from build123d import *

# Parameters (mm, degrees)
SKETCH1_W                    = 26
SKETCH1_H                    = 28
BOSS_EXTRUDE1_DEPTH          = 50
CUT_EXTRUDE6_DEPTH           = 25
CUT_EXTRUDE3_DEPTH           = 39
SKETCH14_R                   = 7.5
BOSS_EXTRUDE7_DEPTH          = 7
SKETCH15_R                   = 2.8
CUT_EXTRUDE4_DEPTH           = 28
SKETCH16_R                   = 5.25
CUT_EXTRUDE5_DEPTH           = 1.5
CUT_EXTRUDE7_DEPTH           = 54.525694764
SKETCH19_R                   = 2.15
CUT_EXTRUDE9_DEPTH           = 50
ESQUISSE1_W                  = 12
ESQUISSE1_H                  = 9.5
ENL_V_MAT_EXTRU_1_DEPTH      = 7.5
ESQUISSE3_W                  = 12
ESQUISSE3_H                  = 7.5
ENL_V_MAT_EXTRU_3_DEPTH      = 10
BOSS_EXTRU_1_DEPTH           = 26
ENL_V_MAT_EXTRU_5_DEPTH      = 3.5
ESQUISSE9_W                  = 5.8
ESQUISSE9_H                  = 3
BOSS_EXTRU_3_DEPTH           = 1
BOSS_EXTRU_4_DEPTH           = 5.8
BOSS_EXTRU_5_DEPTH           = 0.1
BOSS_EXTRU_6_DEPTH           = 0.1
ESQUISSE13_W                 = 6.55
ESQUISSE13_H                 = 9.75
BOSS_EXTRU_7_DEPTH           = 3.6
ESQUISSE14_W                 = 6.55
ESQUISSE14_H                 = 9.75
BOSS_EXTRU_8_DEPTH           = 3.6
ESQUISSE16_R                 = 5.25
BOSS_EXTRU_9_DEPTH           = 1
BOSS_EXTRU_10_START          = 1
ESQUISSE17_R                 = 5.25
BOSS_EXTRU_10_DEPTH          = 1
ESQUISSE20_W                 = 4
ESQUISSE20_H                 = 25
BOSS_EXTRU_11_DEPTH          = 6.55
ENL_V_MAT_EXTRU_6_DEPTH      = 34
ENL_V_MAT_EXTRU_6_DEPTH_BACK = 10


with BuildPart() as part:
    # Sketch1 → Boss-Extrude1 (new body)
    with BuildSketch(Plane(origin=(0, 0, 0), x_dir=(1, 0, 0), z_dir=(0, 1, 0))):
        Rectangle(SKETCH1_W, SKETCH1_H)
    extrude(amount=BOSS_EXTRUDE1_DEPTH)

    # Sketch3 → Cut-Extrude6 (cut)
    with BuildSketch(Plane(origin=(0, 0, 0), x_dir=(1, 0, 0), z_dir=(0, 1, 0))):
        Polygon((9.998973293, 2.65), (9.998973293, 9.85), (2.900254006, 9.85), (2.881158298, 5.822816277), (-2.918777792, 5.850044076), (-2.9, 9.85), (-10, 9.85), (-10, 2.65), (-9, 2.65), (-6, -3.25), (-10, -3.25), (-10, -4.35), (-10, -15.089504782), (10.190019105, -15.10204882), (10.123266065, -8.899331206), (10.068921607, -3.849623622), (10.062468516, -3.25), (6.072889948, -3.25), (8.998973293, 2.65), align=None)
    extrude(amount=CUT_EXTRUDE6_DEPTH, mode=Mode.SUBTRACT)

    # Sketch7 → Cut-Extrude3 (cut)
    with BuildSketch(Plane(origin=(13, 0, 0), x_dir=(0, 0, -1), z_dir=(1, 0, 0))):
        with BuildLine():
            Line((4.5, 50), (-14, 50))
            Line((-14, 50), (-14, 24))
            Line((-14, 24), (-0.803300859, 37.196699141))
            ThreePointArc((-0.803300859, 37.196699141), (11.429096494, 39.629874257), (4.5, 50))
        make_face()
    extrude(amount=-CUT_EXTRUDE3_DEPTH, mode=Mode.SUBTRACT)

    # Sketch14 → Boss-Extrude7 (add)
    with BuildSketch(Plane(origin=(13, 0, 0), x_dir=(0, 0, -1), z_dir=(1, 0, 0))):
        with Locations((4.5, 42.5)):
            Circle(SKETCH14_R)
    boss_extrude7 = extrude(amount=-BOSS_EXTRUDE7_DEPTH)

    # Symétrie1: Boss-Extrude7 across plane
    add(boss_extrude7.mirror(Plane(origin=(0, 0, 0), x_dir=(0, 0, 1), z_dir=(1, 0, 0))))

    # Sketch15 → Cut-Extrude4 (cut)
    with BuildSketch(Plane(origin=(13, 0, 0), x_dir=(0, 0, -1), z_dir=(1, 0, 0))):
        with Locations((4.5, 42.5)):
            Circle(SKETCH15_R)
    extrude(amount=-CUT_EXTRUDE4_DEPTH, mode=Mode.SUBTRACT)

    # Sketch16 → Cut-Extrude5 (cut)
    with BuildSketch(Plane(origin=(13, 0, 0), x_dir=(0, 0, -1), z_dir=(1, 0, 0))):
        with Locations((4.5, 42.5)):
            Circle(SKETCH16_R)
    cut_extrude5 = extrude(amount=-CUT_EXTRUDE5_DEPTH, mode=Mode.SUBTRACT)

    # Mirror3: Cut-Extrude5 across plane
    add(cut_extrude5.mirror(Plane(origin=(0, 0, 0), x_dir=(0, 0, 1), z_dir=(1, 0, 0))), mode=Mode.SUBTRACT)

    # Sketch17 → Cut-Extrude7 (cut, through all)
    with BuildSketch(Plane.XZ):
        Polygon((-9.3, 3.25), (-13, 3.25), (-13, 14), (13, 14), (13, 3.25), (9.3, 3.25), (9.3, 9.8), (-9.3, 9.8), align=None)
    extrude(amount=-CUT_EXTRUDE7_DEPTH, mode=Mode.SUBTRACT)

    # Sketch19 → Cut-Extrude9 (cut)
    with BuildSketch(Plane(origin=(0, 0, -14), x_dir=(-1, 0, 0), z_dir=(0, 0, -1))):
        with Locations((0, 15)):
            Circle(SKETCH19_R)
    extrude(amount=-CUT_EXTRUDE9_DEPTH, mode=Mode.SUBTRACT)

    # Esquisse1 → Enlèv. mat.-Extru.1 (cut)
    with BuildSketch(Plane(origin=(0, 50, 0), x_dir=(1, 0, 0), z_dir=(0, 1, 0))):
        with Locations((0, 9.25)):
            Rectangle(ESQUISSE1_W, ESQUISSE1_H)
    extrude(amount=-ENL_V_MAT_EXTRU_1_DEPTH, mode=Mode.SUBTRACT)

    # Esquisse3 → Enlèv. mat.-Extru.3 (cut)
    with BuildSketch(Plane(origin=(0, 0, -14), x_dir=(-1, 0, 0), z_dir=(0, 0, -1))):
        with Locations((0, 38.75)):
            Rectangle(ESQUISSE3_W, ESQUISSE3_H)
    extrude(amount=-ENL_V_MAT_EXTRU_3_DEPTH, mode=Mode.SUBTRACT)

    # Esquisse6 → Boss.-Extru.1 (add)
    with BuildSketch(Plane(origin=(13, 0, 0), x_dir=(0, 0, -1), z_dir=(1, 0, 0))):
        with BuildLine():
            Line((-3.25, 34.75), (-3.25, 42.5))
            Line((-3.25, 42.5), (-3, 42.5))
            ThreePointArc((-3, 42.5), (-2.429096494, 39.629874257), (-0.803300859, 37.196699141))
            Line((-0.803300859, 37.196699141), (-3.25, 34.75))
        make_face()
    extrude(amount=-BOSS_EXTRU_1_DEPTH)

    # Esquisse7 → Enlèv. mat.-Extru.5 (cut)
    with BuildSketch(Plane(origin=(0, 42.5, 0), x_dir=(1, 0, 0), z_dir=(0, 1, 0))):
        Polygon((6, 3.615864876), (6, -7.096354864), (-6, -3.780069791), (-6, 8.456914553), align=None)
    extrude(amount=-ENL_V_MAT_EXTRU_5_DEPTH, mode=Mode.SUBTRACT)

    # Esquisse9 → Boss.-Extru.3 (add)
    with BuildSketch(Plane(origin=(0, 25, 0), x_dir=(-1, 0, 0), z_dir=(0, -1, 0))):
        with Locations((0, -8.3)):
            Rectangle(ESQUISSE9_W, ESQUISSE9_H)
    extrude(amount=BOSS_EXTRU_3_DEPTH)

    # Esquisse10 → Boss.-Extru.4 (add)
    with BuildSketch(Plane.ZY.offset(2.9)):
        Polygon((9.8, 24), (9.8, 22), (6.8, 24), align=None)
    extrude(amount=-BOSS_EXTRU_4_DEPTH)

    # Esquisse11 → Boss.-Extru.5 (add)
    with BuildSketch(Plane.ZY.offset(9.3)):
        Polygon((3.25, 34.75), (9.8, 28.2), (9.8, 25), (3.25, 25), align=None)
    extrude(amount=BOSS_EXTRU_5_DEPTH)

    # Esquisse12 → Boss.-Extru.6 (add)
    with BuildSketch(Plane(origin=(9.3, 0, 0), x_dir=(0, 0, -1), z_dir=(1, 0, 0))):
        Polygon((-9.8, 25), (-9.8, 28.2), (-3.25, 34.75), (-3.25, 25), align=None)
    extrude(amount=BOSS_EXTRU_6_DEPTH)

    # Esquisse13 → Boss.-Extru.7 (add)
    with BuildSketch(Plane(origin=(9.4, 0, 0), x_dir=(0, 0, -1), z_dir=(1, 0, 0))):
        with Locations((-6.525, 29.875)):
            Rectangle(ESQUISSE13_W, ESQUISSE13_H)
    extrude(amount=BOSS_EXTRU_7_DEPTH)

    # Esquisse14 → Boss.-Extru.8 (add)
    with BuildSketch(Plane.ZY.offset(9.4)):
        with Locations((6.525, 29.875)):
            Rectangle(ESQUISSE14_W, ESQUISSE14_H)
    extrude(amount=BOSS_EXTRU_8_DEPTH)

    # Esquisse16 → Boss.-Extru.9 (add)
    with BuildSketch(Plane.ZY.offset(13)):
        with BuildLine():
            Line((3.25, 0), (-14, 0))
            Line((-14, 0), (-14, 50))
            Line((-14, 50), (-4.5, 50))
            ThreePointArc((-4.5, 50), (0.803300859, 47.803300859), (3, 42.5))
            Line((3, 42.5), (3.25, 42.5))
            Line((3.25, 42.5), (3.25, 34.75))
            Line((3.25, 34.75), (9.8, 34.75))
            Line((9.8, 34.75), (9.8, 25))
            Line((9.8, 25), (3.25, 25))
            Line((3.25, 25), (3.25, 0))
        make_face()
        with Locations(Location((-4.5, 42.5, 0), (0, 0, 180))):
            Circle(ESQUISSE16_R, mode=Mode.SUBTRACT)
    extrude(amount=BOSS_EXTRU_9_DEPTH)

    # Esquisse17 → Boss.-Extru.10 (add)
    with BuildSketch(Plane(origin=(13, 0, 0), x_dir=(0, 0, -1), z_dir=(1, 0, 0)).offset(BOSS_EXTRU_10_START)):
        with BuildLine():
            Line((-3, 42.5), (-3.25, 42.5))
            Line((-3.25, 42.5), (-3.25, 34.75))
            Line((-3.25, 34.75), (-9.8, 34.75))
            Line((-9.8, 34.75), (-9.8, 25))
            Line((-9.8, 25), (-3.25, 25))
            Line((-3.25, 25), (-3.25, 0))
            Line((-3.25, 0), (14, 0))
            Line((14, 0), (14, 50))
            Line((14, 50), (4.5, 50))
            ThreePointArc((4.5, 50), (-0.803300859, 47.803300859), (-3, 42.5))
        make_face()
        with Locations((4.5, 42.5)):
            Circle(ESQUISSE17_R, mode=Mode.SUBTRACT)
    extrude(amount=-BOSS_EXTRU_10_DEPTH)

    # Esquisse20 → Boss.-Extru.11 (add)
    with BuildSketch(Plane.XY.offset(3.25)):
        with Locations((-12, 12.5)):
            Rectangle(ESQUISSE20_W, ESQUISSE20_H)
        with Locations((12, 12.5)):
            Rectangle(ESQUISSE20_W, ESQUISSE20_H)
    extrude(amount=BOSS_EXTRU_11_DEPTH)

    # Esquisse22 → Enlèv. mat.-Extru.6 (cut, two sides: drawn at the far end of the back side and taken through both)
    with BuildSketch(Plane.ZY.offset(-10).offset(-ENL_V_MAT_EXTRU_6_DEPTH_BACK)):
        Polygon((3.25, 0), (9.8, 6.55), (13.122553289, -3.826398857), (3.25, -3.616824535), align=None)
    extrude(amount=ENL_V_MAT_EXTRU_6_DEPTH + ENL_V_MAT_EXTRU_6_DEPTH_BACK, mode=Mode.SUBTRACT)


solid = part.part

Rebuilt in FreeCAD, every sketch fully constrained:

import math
import FreeCAD as App
import Part
import Sketcher

V = App.Vector
Q = App.Units.Quantity


def add_polygon(sketch, points):
    """Adds a closed chain of lines whose ends are joined by coincident constraints."""
    first, n = sketch.GeometryCount, len(points)
    for a, b in zip(points, points[1:] + points[:1]):
        sketch.addGeometry(Part.LineSegment(App.Vector(*a, 0), App.Vector(*b, 0)), False)
    for i in range(n):
        sketch.addConstraint(Sketcher.Constraint("Coincident", first + i, 2, first + (i + 1) % n, 1))

doc = App.newDocument("Part")
params = doc.addObject("Spreadsheet::Sheet", "Params")
for row, (alias, value) in enumerate([
    ("sketch1_width", "26 mm"),
    ("sketch1_height", "28 mm"),
    ("pad1_length", "50 mm"),
    ("sketch2_width", "1 mm"),
    ("sketch2_width2", "4 mm"),
    ("sketch2_length", "4 mm"),
    ("sketch2_width3", "7.1 mm"),
    ("sketch2_height", "7.2 mm"),
    ("pocket1_length", "25 mm"),
    ("sketch3_radius", "7.5 mm"),
    ("sketch3_width", "26 mm"),
    ("sketch3_height", "18.5 mm"),
    ("pocket2_length", "39 mm"),
    ("sketch4_diameter", "15 mm"),
    ("pad2_length", "7 mm"),
    ("sketch5_diameter", "5.6 mm"),
    ("pocket3_length", "28 mm"),
    ("sketch6_diameter", "10.5 mm"),
    ("pocket4_length", "1.5 mm"),
    ("sketch7_width", "26 mm"),
    ("sketch7_width2", "3.7 mm"),
    ("sketch7_height", "6.55 mm"),
    ("sketch7_height2", "10.75 mm"),
    ("sketch8_diameter", "4.3 mm"),
    ("pocket6_length", "50 mm"),
    ("sketch9_width", "12 mm"),
    ("sketch9_height", "9.5 mm"),
    ("pocket7_length", "7.5 mm"),
    ("sketch10_width", "12 mm"),
    ("sketch10_height", "7.5 mm"),
    ("pocket8_length", "10 mm"),
    ("sketch11_radius", "7.5 mm"),
    ("sketch11_width", "7.75 mm"),
    ("sketch11_height", "0.25 mm"),
    ("pad3_length", "26 mm"),
    ("pocket9_length", "3.5 mm"),
    ("sketch13_height", "3 mm"),
    ("sketch13_width", "5.8 mm"),
    ("pad4_length", "1 mm"),
    ("sketch14_width", "2 mm"),
    ("sketch14_height", "3 mm"),
    ("pad5_length", "5.8 mm"),
    ("sketch15_width", "3.2 mm"),
    ("sketch15_width2", "9.75 mm"),
    ("pad6_length", "0.1 mm"),
    ("sketch16_width", "3.2 mm"),
    ("sketch16_width2", "9.75 mm"),
    ("pad7_length", "0.1 mm"),
    ("sketch17_width", "9.75 mm"),
    ("sketch17_height", "6.55 mm"),
    ("pad8_length", "3.6 mm"),
    ("sketch18_width", "9.75 mm"),
    ("sketch18_height", "6.55 mm"),
    ("pad9_length", "3.6 mm"),
    ("sketch19_diameter", "10.5 mm"),
    ("sketch19_radius", "7.5 mm"),
    ("sketch19_width", "25 mm"),
    ("sketch19_width2", "50 mm"),
    ("sketch19_height", "9.5 mm"),
    ("pad10_length", "1 mm"),
    ("sketch20_diameter", "10.5 mm"),
    ("sketch20_radius", "7.5 mm"),
    ("sketch20_width", "25 mm"),
    ("sketch20_width2", "50 mm"),
    ("sketch20_height", "9.5 mm"),
    ("pad11_length", "1 mm"),
    ("sketch21_width", "4 mm"),
    ("sketch21_height", "25 mm"),
    ("pad12_length", "6.55 mm"),
], start=1):
    params.set(f"A{row}", alias)
    params.set(f"B{row}", "=" + value)
    params.setAlias(f"B{row}", alias)

body = doc.addObject("PartDesign::Body", "Body")

sketch1 = doc.addObject("Sketcher::SketchObject", "Sketch")
body.addObject(sketch1)
sketch1.AttachmentSupport = (doc.XZ_Plane, [""])
sketch1.MapMode = "FlatFace"
add_polygon(sketch1, [(-13, -14), (-13, 14), (13, 14), (13, -14)])
sketch1.addConstraint([
    Sketcher.Constraint("Vertical", 0),
    Sketcher.Constraint("Horizontal", 1),
    Sketcher.Constraint("Vertical", 2),
    Sketcher.Constraint("Horizontal", 3),
    Sketcher.Constraint("Symmetric", 0, 2, 2, 2, -1, 1),
    Sketcher.Constraint("DistanceX", 1, 1, 1, 2, 26.0),
    Sketcher.Constraint("DistanceY", 0, 1, 0, 2, 28.0),
])
sketch1.setExpression("Constraints[9]", "Params.sketch1_width")
sketch1.setExpression("Constraints[10]", "Params.sketch1_height")
pad1 = doc.addObject("PartDesign::Pad", "Pad")
body.addObject(pad1)
pad1.Profile = sketch1
pad1.setExpression("Length", "Params.pad1_length")
pad1.Reversed = True

sketch2 = doc.addObject("Sketcher::SketchObject", "Sketch001")
body.addObject(sketch2)
sketch2.AttachmentSupport = (doc.XZ_Plane, [""])
sketch2.MapMode = "FlatFace"
add_polygon(sketch2, [(10, -2.6), (10, -9.8), (2.9, -9.8), (2.9, -5.8), (-2.9, -5.9), (-2.9, -9.8), (-10, -9.8), (-10, -2.6), (-9, -2.6), (-6, 3.2), (-10, 3.2), (-10, 15.1), (10.2, 15.1), (10.1, 8.9), (10.1, 3.8), (10.1, 3.2), (6.1, 3.2), (9, -2.6)])
sketch2.addConstraint([
    Sketcher.Constraint("Vertical", 0),
    Sketcher.Constraint("Horizontal", 1),
    Sketcher.Constraint("Horizontal", 5),
    Sketcher.Constraint("Vertical", 6),
    Sketcher.Constraint("Horizontal", 7),
    Sketcher.Constraint("Horizontal", 9),
    Sketcher.Constraint("Vertical", 10),
    Sketcher.Constraint("Horizontal", 15),
    Sketcher.Constraint("Horizontal", 17),
    Sketcher.Constraint("Perpendicular", 3, 4),
    Sketcher.Constraint("Parallel", 12, 13),
    Sketcher.Constraint("Parallel", 13, 14),
    Sketcher.Constraint("Horizontal", 1, 2, 4, 2),
    Sketcher.Constraint("Horizontal", 9, 2, 14, 2),
    Sketcher.Constraint("Horizontal", 7, 2, 16, 2),
    Sketcher.Constraint("Vertical", 6, 2, 9, 2),
    Sketcher.Constraint("Equal", 7, 17),
    Sketcher.Constraint("DistanceX", 7, 1, 7, 2, 1.0),
    Sketcher.Constraint("DistanceX", 9, 2, 9, 1, 4.0),
    Sketcher.Constraint("Distance", 4, 4.0),
    Sketcher.Constraint("DistanceX", 5, 2, 5, 1, 7.1),
    Sketcher.Constraint("DistanceY", 0, 2, 0, 1, 7.2),
    Sketcher.Constraint("DistanceX", 5, 2, -1, 1, 10.0),
    Sketcher.Constraint("Distance", 3, 5.8),
    Sketcher.Constraint("DistanceY", 7, 2, 8, 2, 5.9),
    Sketcher.Constraint("Distance", 13, 5.05),
    Sketcher.Constraint("DistanceY", 0, 2, -1, 1, 9.85),
    Sketcher.Constraint("DistanceX", 1, 2, 1, 1, 7.098719),
    Sketcher.Constraint("DistanceX", 15, 2, 15, 1, 3.989579),
    Sketcher.Constraint("Distance", 2, 4.027229),
    Sketcher.Constraint("Distance", 14, 0.599658),
    Sketcher.Constraint("Distance", 16, 6.585739),
    Sketcher.Constraint("DistanceY", 10, 1, 10, 2, 11.839505),
    Sketcher.Constraint("DistanceX", -1, 1, 11, 2, 10.190019),
    Sketcher.Constraint("DistanceY", -1, 1, 11, 2, 15.102049),
    Sketcher.Constraint("DistanceX", -1, 1, 13, 2, 10.068922),
])
sketch2.setExpression("Constraints[35]", "Params.sketch2_width")
sketch2.setExpression("Constraints[36]", "Params.sketch2_width2")
sketch2.setExpression("Constraints[37]", "Params.sketch2_length")
sketch2.setExpression("Constraints[38]", "Params.sketch2_width3")
sketch2.setExpression("Constraints[39]", "Params.sketch2_height")
pocket1 = doc.addObject("PartDesign::Pocket", "Pocket")
body.addObject(pocket1)
pocket1.Profile = sketch2
pocket1.setExpression("Length", "Params.pocket1_length")

sketch3 = doc.addObject("Sketcher::SketchObject", "Sketch002")
body.addObject(sketch3)
sketch3.AttachmentSupport = (doc.YZ_Plane, [""])
sketch3.MapMode = "FlatFace"
sketch3.AttachmentOffset = App.Placement(V(0, 0, 13), App.Rotation())
sketch3.addGeometry([
    Part.LineSegment(V(50, -4, 0), V(50, 14, 0)),
    Part.LineSegment(V(50, 14, 0), V(24, 14, 0)),
    Part.LineSegment(V(24, 14, 0), V(37, 1, 0)),
    Part.ArcOfCircle(Part.Circle(V(42, -4, 0), V(0, 0, 1), 8), math.radians(135), math.radians(360)),
], False)
sketch3.addConstraint([
    Sketcher.Constraint("Coincident", 0, 2, 1, 1),
    Sketcher.Constraint("Coincident", 1, 2, 2, 1),
    Sketcher.Constraint("Coincident", 2, 2, 3, 1),
    Sketcher.Constraint("Tangent", 3, 2, 0, 1),
    Sketcher.Constraint("Vertical", 0),
    Sketcher.Constraint("Horizontal", 1),
    Sketcher.Constraint("Radius", 3, 7.5),
    Sketcher.Constraint("DistanceX", 1, 2, 1, 1, 26.0),
    Sketcher.Constraint("Angle", 2, Q("-45 deg")),
    Sketcher.Constraint("DistanceY", 0, 1, 0, 2, 18.5),
    Sketcher.Constraint("DistanceX", -1, 1, 0, 2, 50.0),
    Sketcher.Constraint("DistanceY", -1, 1, 0, 2, 14.0),
])
sketch3.setExpression("Constraints[6]", "Params.sketch3_radius")
sketch3.setExpression("Constraints[7]", "Params.sketch3_width")
sketch3.setExpression("Constraints[9]", "Params.sketch3_height")
pocket2 = doc.addObject("PartDesign::Pocket", "Pocket001")
body.addObject(pocket2)
pocket2.Profile = sketch3
pocket2.setExpression("Length", "Params.pocket2_length")

sketch4 = doc.addObject("Sketcher::SketchObject", "Sketch003")
body.addObject(sketch4)
sketch4.AttachmentSupport = (doc.YZ_Plane, [""])
sketch4.MapMode = "FlatFace"
sketch4.AttachmentOffset = App.Placement(V(0, 0, 13), App.Rotation())
sketch4.addGeometry(Part.Circle(V(42, -4, 0), V(0, 0, 1), 8), False)
sketch4.addConstraint([
    Sketcher.Constraint("Diameter", 0, 15.0),
    Sketcher.Constraint("DistanceX", -1, 1, 0, 3, 42.5),
    Sketcher.Constraint("DistanceY", 0, 3, -1, 1, 4.5),
])
sketch4.setExpression("Constraints[0]", "Params.sketch4_diameter")
pad2 = doc.addObject("PartDesign::Pad", "Pad001")
body.addObject(pad2)
pad2.Profile = sketch4
pad2.setExpression("Length", "Params.pad2_length")
pad2.Reversed = True
doc.recompute()

mirrored = doc.addObject("PartDesign::Mirrored", "Mirrored")
body.addObject(mirrored)
mirrored.Originals = [pad2]
mirrored.MirrorPlane = (doc.YZ_Plane, [""])
body.Tip = mirrored

sketch5 = doc.addObject("Sketcher::SketchObject", "Sketch004")
body.addObject(sketch5)
sketch5.AttachmentSupport = (doc.YZ_Plane, [""])
sketch5.MapMode = "FlatFace"
sketch5.AttachmentOffset = App.Placement(V(0, 0, 13), App.Rotation())
sketch5.addGeometry(Part.Circle(V(42.5, -4.5, 0), V(0, 0, 1), 2.8), False)
sketch5.addConstraint([
    Sketcher.Constraint("Diameter", 0, 5.6),
    Sketcher.Constraint("DistanceX", -1, 1, 0, 3, 42.5),
    Sketcher.Constraint("DistanceY", 0, 3, -1, 1, 4.5),
])
sketch5.setExpression("Constraints[0]", "Params.sketch5_diameter")
pocket3 = doc.addObject("PartDesign::Pocket", "Pocket002")
body.addObject(pocket3)
pocket3.Profile = sketch5
pocket3.setExpression("Length", "Params.pocket3_length")

sketch6 = doc.addObject("Sketcher::SketchObject", "Sketch005")
body.addObject(sketch6)
sketch6.AttachmentSupport = (doc.YZ_Plane, [""])
sketch6.MapMode = "FlatFace"
sketch6.AttachmentOffset = App.Placement(V(0, 0, 13), App.Rotation())
sketch6.addGeometry(Part.Circle(V(42, -4, 0), V(0, 0, 1), 5), False)
sketch6.addConstraint([
    Sketcher.Constraint("Diameter", 0, 10.5),
    Sketcher.Constraint("DistanceX", -1, 1, 0, 3, 42.5),
    Sketcher.Constraint("DistanceY", 0, 3, -1, 1, 4.5),
])
sketch6.setExpression("Constraints[0]", "Params.sketch6_diameter")
pocket4 = doc.addObject("PartDesign::Pocket", "Pocket003")
body.addObject(pocket4)
pocket4.Profile = sketch6
pocket4.setExpression("Length", "Params.pocket4_length")
doc.recompute()

mirrored2 = doc.addObject("PartDesign::Mirrored", "Mirrored001")
body.addObject(mirrored2)
mirrored2.Originals = [pocket4]
mirrored2.MirrorPlane = (doc.YZ_Plane, [""])
body.Tip = mirrored2

sketch7 = doc.addObject("Sketcher::SketchObject", "Sketch006")
body.addObject(sketch7)
sketch7.AttachmentSupport = (doc.XZ_Plane, [""])
sketch7.MapMode = "FlatFace"
add_polygon(sketch7, [(-13, 3.2), (-9.3, 3.2), (-9.3, 9.8), (9.3, 9.8), (9.3, 3.2), (13, 3.2), (13, 14), (-13, 14)])
sketch7.addConstraint([
    Sketcher.Constraint("Horizontal", 0),
    Sketcher.Constraint("Vertical", 1),
    Sketcher.Constraint("Horizontal", 2),
    Sketcher.Constraint("Vertical", 3),
    Sketcher.Constraint("Horizontal", 4),
    Sketcher.Constraint("Vertical", 5),
    Sketcher.Constraint("Horizontal", 6),
    Sketcher.Constraint("Vertical", 7),
    Sketcher.Constraint("Symmetric", 0, 2, 3, 2, -2),
    Sketcher.Constraint("Equal", 0, 4),
    Sketcher.Constraint("DistanceX", 6, 2, 6, 1, 26.0),
    Sketcher.Constraint("DistanceX", 0, 1, 0, 2, 3.7),
    Sketcher.Constraint("DistanceY", -1, 1, 5, 2, 14.0),
    Sketcher.Constraint("DistanceY", 1, 1, 1, 2, 6.55),
    Sketcher.Constraint("DistanceY", 5, 1, 5, 2, 10.75),
])
sketch7.setExpression("Constraints[18]", "Params.sketch7_width")
sketch7.setExpression("Constraints[19]", "Params.sketch7_width2")
sketch7.setExpression("Constraints[21]", "Params.sketch7_height")
sketch7.setExpression("Constraints[22]", "Params.sketch7_height2")
pocket5 = doc.addObject("PartDesign::Pocket", "Pocket004")
body.addObject(pocket5)
pocket5.Profile = sketch7
pocket5.Type = "ThroughAll"

sketch8 = doc.addObject("Sketcher::SketchObject", "Sketch007")
body.addObject(sketch8)
sketch8.AttachmentSupport = (doc.XY_Plane, [""])
sketch8.MapMode = "FlatFace"
sketch8.AttachmentOffset = App.Placement(V(0, 0, -14), App.Rotation())
sketch8.addGeometry(Part.Circle(V(0, 15, 0), V(0, 0, 1), 2.1), False)
sketch8.addConstraint([
    Sketcher.Constraint("PointOnObject", 0, 3, -2),
    Sketcher.Constraint("Diameter", 0, 4.3),
    Sketcher.Constraint("DistanceY", -1, 1, 0, 3, 15.0),
])
sketch8.setExpression("Constraints[1]", "Params.sketch8_diameter")
pocket6 = doc.addObject("PartDesign::Pocket", "Pocket005")
body.addObject(pocket6)
pocket6.Profile = sketch8
pocket6.setExpression("Length", "Params.pocket6_length")
pocket6.Reversed = True

sketch9 = doc.addObject("Sketcher::SketchObject", "Sketch008")
body.addObject(sketch9)
sketch9.AttachmentSupport = (doc.XZ_Plane, [""])
sketch9.MapMode = "FlatFace"
sketch9.AttachmentOffset = App.Placement(V(0, 0, -50), App.Rotation())
add_polygon(sketch9, [(-6, -14), (-6, -4), (6, -4), (6, -14)])
sketch9.addConstraint([
    Sketcher.Constraint("Vertical", 0),
    Sketcher.Constraint("Horizontal", 1),
    Sketcher.Constraint("Vertical", 2),
    Sketcher.Constraint("Horizontal", 3),
    Sketcher.Constraint("DistanceX", 1, 1, 1, 2, 12.0),
    Sketcher.Constraint("DistanceY", 0, 1, 0, 2, 9.5),
    Sketcher.Constraint("DistanceX", 0, 2, -1, 1, 6.0),
    Sketcher.Constraint("DistanceY", 2, 2, -1, 1, 14.0),
])
sketch9.setExpression("Constraints[8]", "Params.sketch9_width")
sketch9.setExpression("Constraints[9]", "Params.sketch9_height")
pocket7 = doc.addObject("PartDesign::Pocket", "Pocket006")
body.addObject(pocket7)
pocket7.Profile = sketch9
pocket7.setExpression("Length", "Params.pocket7_length")
pocket7.Reversed = True

sketch10 = doc.addObject("Sketcher::SketchObject", "Sketch009")
body.addObject(sketch10)
sketch10.AttachmentSupport = (doc.XY_Plane, [""])
sketch10.MapMode = "FlatFace"
sketch10.AttachmentOffset = App.Placement(V(0, 0, -14), App.Rotation())
add_polygon(sketch10, [(6, 42), (6, 35), (-6, 35), (-6, 42)])
sketch10.addConstraint([
    Sketcher.Constraint("Vertical", 0),
    Sketcher.Constraint("Horizontal", 1),
    Sketcher.Constraint("Vertical", 2),
    Sketcher.Constraint("Horizontal", 3),
    Sketcher.Constraint("DistanceX", 1, 2, 1, 1, 12.0),
    Sketcher.Constraint("DistanceY", 0, 2, 0, 1, 7.5),
    Sketcher.Constraint("DistanceX", -1, 1, 0, 2, 6.0),
    Sketcher.Constraint("DistanceY", -1, 1, 0, 2, 35.0),
])
sketch10.setExpression("Constraints[8]", "Params.sketch10_width")
sketch10.setExpression("Constraints[9]", "Params.sketch10_height")
pocket8 = doc.addObject("PartDesign::Pocket", "Pocket007")
body.addObject(pocket8)
pocket8.Profile = sketch10
pocket8.setExpression("Length", "Params.pocket8_length")
pocket8.Reversed = True

sketch11 = doc.addObject("Sketcher::SketchObject", "Sketch010")
body.addObject(sketch11)
sketch11.AttachmentSupport = (doc.YZ_Plane, [""])
sketch11.MapMode = "FlatFace"
sketch11.AttachmentOffset = App.Placement(V(0, 0, 13), App.Rotation())
sketch11.addGeometry([
    Part.LineSegment(V(42.5, 3.25, 0), V(34.75, 3.25, 0)),
    Part.LineSegment(V(34.75, 3.25, 0), V(37.2, 0.8, 0)),
    Part.ArcOfCircle(Part.Circle(V(42.5, -4.5, 0), V(0, 0, 1), 7.5), math.radians(90), math.radians(135)),
    Part.LineSegment(V(42.5, 3, 0), V(42.5, 3.25, 0)),
], False)
sketch11.addConstraint([
    Sketcher.Constraint("Coincident", 0, 2, 1, 1),
    Sketcher.Constraint("Coincident", 1, 2, 2, 2),
    Sketcher.Constraint("Coincident", 2, 1, 3, 1),
    Sketcher.Constraint("Coincident", 3, 2, 0, 1),
    Sketcher.Constraint("Horizontal", 0),
    Sketcher.Constraint("Vertical", 3),
    Sketcher.Constraint("Radius", 2, 7.5),
    Sketcher.Constraint("Angle", 1, Q("-45 deg")),
    Sketcher.Constraint("DistanceY", -1, 1, 2, 1, 3.0),
    Sketcher.Constraint("DistanceX", 0, 2, 0, 1, 7.75),
    Sketcher.Constraint("DistanceY", 3, 1, 3, 2, 0.25),
    Sketcher.Constraint("DistanceX", -1, 1, 2, 3, 42.5),
    Sketcher.Constraint("DistanceX", -1, 1, 2, 1, 42.5),
])
sketch11.setExpression("Constraints[6]", "Params.sketch11_radius")
sketch11.setExpression("Constraints[9]", "Params.sketch11_width")
sketch11.setExpression("Constraints[10]", "Params.sketch11_height")
pad3 = doc.addObject("PartDesign::Pad", "Pad002")
body.addObject(pad3)
pad3.Profile = sketch11
pad3.setExpression("Length", "Params.pad3_length")
pad3.Reversed = True

sketch12 = doc.addObject("Sketcher::SketchObject", "Sketch011")
body.addObject(sketch12)
sketch12.AttachmentSupport = (doc.XZ_Plane, [""])
sketch12.MapMode = "FlatFace"
sketch12.AttachmentOffset = App.Placement(V(0, 0, -42.5), App.Rotation())
add_polygon(sketch12, [(6, 7), (6, -4), (-6, -8), (-6, 4)])
sketch12.addConstraint([
    Sketcher.Constraint("Vertical", 0),
    Sketcher.Constraint("Vertical", 2),
    Sketcher.Constraint("DistanceX", -1, 1, 0, 2, 6.0),
    Sketcher.Constraint("DistanceX", 1, 2, -1, 1, 6.0),
    Sketcher.Constraint("DistanceY", 0, 2, 0, 1, 10.71222),
    Sketcher.Constraint("Distance", 3, 12.449809),
    Sketcher.Constraint("DistanceY", 2, 1, 2, 2, 12.236984),
    Sketcher.Constraint("DistanceY", -1, 1, 2, 2, 3.78007),
])
pocket9 = doc.addObject("PartDesign::Pocket", "Pocket008")
body.addObject(pocket9)
pocket9.Profile = sketch12
pocket9.setExpression("Length", "Params.pocket9_length")
pocket9.Reversed = True

sketch13 = doc.addObject("Sketcher::SketchObject", "Sketch012")
body.addObject(sketch13)
sketch13.AttachmentSupport = (doc.XZ_Plane, [""])
sketch13.MapMode = "FlatFace"
sketch13.AttachmentOffset = App.Placement(V(0, 0, -25), App.Rotation())
add_polygon(sketch13, [(2.9, 6.8), (2.9, 9.8), (-2.9, 9.8), (-2.9, 6.8)])
sketch13.addConstraint([
    Sketcher.Constraint("Vertical", 0),
    Sketcher.Constraint("Horizontal", 1),
    Sketcher.Constraint("Vertical", 2),
    Sketcher.Constraint("Horizontal", 3),
    Sketcher.Constraint("DistanceY", 0, 1, 0, 2, 3.0),
    Sketcher.Constraint("DistanceX", 1, 2, 1, 1, 5.8),
    Sketcher.Constraint("DistanceX", -1, 1, 0, 2, 2.9),
    Sketcher.Constraint("DistanceY", -1, 1, 0, 2, 9.8),
])
sketch13.setExpression("Constraints[8]", "Params.sketch13_height")
sketch13.setExpression("Constraints[9]", "Params.sketch13_width")
pad4 = doc.addObject("PartDesign::Pad", "Pad003")
body.addObject(pad4)
pad4.Profile = sketch13
pad4.setExpression("Length", "Params.pad4_length")

sketch14 = doc.addObject("Sketcher::SketchObject", "Sketch013")
body.addObject(sketch14)
sketch14.AttachmentSupport = (doc.YZ_Plane, [""])
sketch14.MapMode = "FlatFace"
sketch14.AttachmentOffset = App.Placement(V(0, 0, -2.9), App.Rotation())
add_polygon(sketch14, [(22, 9.8), (24, 9.8), (24, 6.8)])
sketch14.addConstraint([
    Sketcher.Constraint("Horizontal", 0),
    Sketcher.Constraint("Vertical", 1),
    Sketcher.Constraint("DistanceX", 0, 1, 0, 2, 2.0),
    Sketcher.Constraint("DistanceY", 1, 2, 1, 1, 3.0),
    Sketcher.Constraint("DistanceX", -1, 1, 0, 2, 24.0),
    Sketcher.Constraint("DistanceY", -1, 1, 0, 2, 9.8),
])
sketch14.setExpression("Constraints[5]", "Params.sketch14_width")
sketch14.setExpression("Constraints[6]", "Params.sketch14_height")
pad5 = doc.addObject("PartDesign::Pad", "Pad004")
body.addObject(pad5)
pad5.Profile = sketch14
pad5.setExpression("Length", "Params.pad5_length")

sketch15 = doc.addObject("Sketcher::SketchObject", "Sketch014")
body.addObject(sketch15)
sketch15.AttachmentSupport = (doc.YZ_Plane, [""])
sketch15.MapMode = "FlatFace"
sketch15.AttachmentOffset = App.Placement(V(0, 0, -9.3), App.Rotation())
add_polygon(sketch15, [(28.2, 9.8), (34.8, 3.2), (25, 3.2), (25, 9.8)])
sketch15.addConstraint([
    Sketcher.Constraint("Horizontal", 1),
    Sketcher.Constraint("Vertical", 2),
    Sketcher.Constraint("Horizontal", 3),
    Sketcher.Constraint("Angle", 0, Q("-45 deg")),
    Sketcher.Constraint("DistanceX", 3, 1, 3, 2, 3.2),
    Sketcher.Constraint("DistanceX", -1, 1, 1, 2, 25.0),
    Sketcher.Constraint("DistanceX", 1, 2, 1, 1, 9.75),
    Sketcher.Constraint("DistanceY", -1, 1, 2, 2, 9.8),
])
sketch15.setExpression("Constraints[8]", "Params.sketch15_width")
sketch15.setExpression("Constraints[10]", "Params.sketch15_width2")
pad6 = doc.addObject("PartDesign::Pad", "Pad005")
body.addObject(pad6)
pad6.Profile = sketch15
pad6.setExpression("Length", "Params.pad6_length")
pad6.Reversed = True

sketch16 = doc.addObject("Sketcher::SketchObject", "Sketch015")
body.addObject(sketch16)
sketch16.AttachmentSupport = (doc.YZ_Plane, [""])
sketch16.MapMode = "FlatFace"
sketch16.AttachmentOffset = App.Placement(V(0, 0, 9.3), App.Rotation())
add_polygon(sketch16, [(28.2, 9.8), (25, 9.8), (25, 3.2), (34.8, 3.2)])
sketch16.addConstraint([
    Sketcher.Constraint("Horizontal", 0),
    Sketcher.Constraint("Vertical", 1),
    Sketcher.Constraint("Horizontal", 2),
    Sketcher.Constraint("Angle", 3, Q("135 deg")),
    Sketcher.Constraint("DistanceX", 0, 2, 0, 1, 3.2),
    Sketcher.Constraint("DistanceX", -1, 1, 0, 2, 25.0),
    Sketcher.Constraint("DistanceX", 2, 1, 2, 2, 9.75),
    Sketcher.Constraint("DistanceY", -1, 1, 0, 2, 9.8),
])
sketch16.setExpression("Constraints[8]", "Params.sketch16_width")
sketch16.setExpression("Constraints[10]", "Params.sketch16_width2")
pad7 = doc.addObject("PartDesign::Pad", "Pad006")
body.addObject(pad7)
pad7.Profile = sketch16
pad7.setExpression("Length", "Params.pad7_length")

sketch17 = doc.addObject("Sketcher::SketchObject", "Sketch016")
body.addObject(sketch17)
sketch17.AttachmentSupport = (doc.YZ_Plane, [""])
sketch17.MapMode = "FlatFace"
sketch17.AttachmentOffset = App.Placement(V(0, 0, 9.4), App.Rotation())
add_polygon(sketch17, [(35, 10), (25, 10), (25, 3), (35, 3)])
sketch17.addConstraint([
    Sketcher.Constraint("Horizontal", 0),
    Sketcher.Constraint("Vertical", 1),
    Sketcher.Constraint("Horizontal", 2),
    Sketcher.Constraint("Vertical", 3),
    Sketcher.Constraint("DistanceX", -1, 1, 0, 2, 25.0),
    Sketcher.Constraint("DistanceX", 0, 2, 0, 1, 9.75),
    Sketcher.Constraint("DistanceY", 1, 2, 1, 1, 6.55),
    Sketcher.Constraint("DistanceY", -1, 1, 0, 2, 9.8),
])
sketch17.setExpression("Constraints[9]", "Params.sketch17_width")
sketch17.setExpression("Constraints[10]", "Params.sketch17_height")
pad8 = doc.addObject("PartDesign::Pad", "Pad007")
body.addObject(pad8)
pad8.Profile = sketch17
pad8.setExpression("Length", "Params.pad8_length")

sketch18 = doc.addObject("Sketcher::SketchObject", "Sketch017")
body.addObject(sketch18)
sketch18.AttachmentSupport = (doc.YZ_Plane, [""])
sketch18.MapMode = "FlatFace"
sketch18.AttachmentOffset = App.Placement(V(0, 0, -9.4), App.Rotation())
add_polygon(sketch18, [(35, 3), (25, 3), (25, 10), (35, 10)])
sketch18.addConstraint([
    Sketcher.Constraint("Horizontal", 0),
    Sketcher.Constraint("Vertical", 1),
    Sketcher.Constraint("Horizontal", 2),
    Sketcher.Constraint("Vertical", 3),
    Sketcher.Constraint("DistanceX", -1, 1, 0, 2, 25.0),
    Sketcher.Constraint("DistanceX", 0, 2, 0, 1, 9.75),
    Sketcher.Constraint("DistanceY", 1, 1, 1, 2, 6.55),
    Sketcher.Constraint("DistanceY", -1, 1, 1, 2, 9.8),
])
sketch18.setExpression("Constraints[9]", "Params.sketch18_width")
sketch18.setExpression("Constraints[10]", "Params.sketch18_height")
pad9 = doc.addObject("PartDesign::Pad", "Pad008")
body.addObject(pad9)
pad9.Profile = sketch18
pad9.setExpression("Length", "Params.pad9_length")
pad9.Reversed = True

sketch19 = doc.addObject("Sketcher::SketchObject", "Sketch018")
body.addObject(sketch19)
sketch19.AttachmentSupport = (doc.YZ_Plane, [""])
sketch19.MapMode = "FlatFace"
sketch19.AttachmentOffset = App.Placement(V(0, 0, -13), App.Rotation())
sketch19.addGeometry([
    Part.LineSegment(V(0, -14, 0), V(0, 3.25, 0)),
    Part.LineSegment(V(0, 3.25, 0), V(25, 3.25, 0)),
    Part.LineSegment(V(25, 3.25, 0), V(25, 9.8, 0)),
    Part.LineSegment(V(25, 9.8, 0), V(34.75, 9.8, 0)),
    Part.LineSegment(V(34.75, 9.8, 0), V(34.75, 3.25, 0)),
    Part.LineSegment(V(34.75, 3.25, 0), V(42.5, 3.25, 0)),
    Part.LineSegment(V(42.5, 3.25, 0), V(42.5, 3, 0)),
    Part.ArcOfCircle(Part.Circle(V(42.5, -4.5, 0), V(0, 0, 1), 7.5), math.radians(0), math.radians(90)),
    Part.LineSegment(V(50, -4.5, 0), V(50, -14, 0)),
    Part.LineSegment(V(50, -14, 0), V(0, -14, 0)),
    Part.Circle(V(42.5, -4.5, 0), V(0, 0, 1), 5.25),
], False)
sketch19.addConstraint([
    Sketcher.Constraint("Coincident", 0, 2, 1, 1),
    Sketcher.Constraint("Coincident", 1, 2, 2, 1),
    Sketcher.Constraint("Coincident", 2, 2, 3, 1),
    Sketcher.Constraint("Coincident", 3, 2, 4, 1),
    Sketcher.Constraint("Coincident", 4, 2, 5, 1),
    Sketcher.Constraint("Coincident", 5, 2, 6, 1),
    Sketcher.Constraint("Coincident", 6, 2, 7, 2),
    Sketcher.Constraint("Tangent", 7, 1, 8, 1),
    Sketcher.Constraint("Coincident", 8, 2, 9, 1),
    Sketcher.Constraint("Coincident", 9, 2, 0, 1),
    Sketcher.Constraint("Vertical", 0),
    Sketcher.Constraint("Horizontal", 1),
    Sketcher.Constraint("Vertical", 2),
    Sketcher.Constraint("Horizontal", 3),
    Sketcher.Constraint("Vertical", 4),
    Sketcher.Constraint("Horizontal", 5),
    Sketcher.Constraint("Vertical", 6),
    Sketcher.Constraint("Vertical", 8),
    Sketcher.Constraint("Horizontal", 9),
    Sketcher.Constraint("Coincident", 10, 3, 7, 3),
    Sketcher.Constraint("PointOnObject", 0, 2, -2),
    Sketcher.Constraint("Horizontal", 1, 2, 4, 2),
    Sketcher.Constraint("Vertical", 10, 3, 5, 2),
    Sketcher.Constraint("Diameter", 10, 10.5),
    Sketcher.Constraint("Radius", 7, 7.5),
    Sketcher.Constraint("DistanceX", 1, 1, 1, 2, 25.0),
    Sketcher.Constraint("DistanceX", 9, 2, 9, 1, 50.0),
    Sketcher.Constraint("DistanceY", 8, 2, 8, 1, 9.5),
    Sketcher.Constraint("DistanceY", -1, 1, 6, 2, 3.0),
    Sketcher.Constraint("DistanceX", 3, 1, 3, 2, 9.75),
    Sketcher.Constraint("DistanceY", 0, 1, 0, 2, 17.25),
    Sketcher.Constraint("DistanceY", 2, 1, 2, 2, 6.55),
])
sketch19.setExpression("Constraints[23]", "Params.sketch19_diameter")
sketch19.setExpression("Constraints[24]", "Params.sketch19_radius")
sketch19.setExpression("Constraints[25]", "Params.sketch19_width")
sketch19.setExpression("Constraints[26]", "Params.sketch19_width2")
sketch19.setExpression("Constraints[27]", "Params.sketch19_height")
pad10 = doc.addObject("PartDesign::Pad", "Pad009")
body.addObject(pad10)
pad10.Profile = sketch19
pad10.setExpression("Length", "Params.pad10_length")
pad10.Reversed = True

sketch20 = doc.addObject("Sketcher::SketchObject", "Sketch019")
body.addObject(sketch20)
sketch20.AttachmentSupport = (doc.YZ_Plane, [""])
sketch20.MapMode = "FlatFace"
sketch20.AttachmentOffset = App.Placement(V(0, 0, 14), App.Rotation())
sketch20.addGeometry([
    Part.LineSegment(V(42.5, 3, 0), V(42.5, 3.25, 0)),
    Part.LineSegment(V(42.5, 3.25, 0), V(34.75, 3.25, 0)),
    Part.LineSegment(V(34.75, 3.25, 0), V(34.75, 9.8, 0)),
    Part.LineSegment(V(34.75, 9.8, 0), V(25, 9.8, 0)),
    Part.LineSegment(V(25, 9.8, 0), V(25, 3.25, 0)),
    Part.LineSegment(V(25, 3.25, 0), V(0, 3.25, 0)),
    Part.LineSegment(V(0, 3.25, 0), V(0, -14, 0)),
    Part.LineSegment(V(0, -14, 0), V(50, -14, 0)),
    Part.LineSegment(V(50, -14, 0), V(50, -4.5, 0)),
    Part.ArcOfCircle(Part.Circle(V(42.5, -4.5, 0), V(0, 0, 1), 7.5), math.radians(0), math.radians(90)),
    Part.Circle(V(42.5, -4.5, 0), V(0, 0, 1), 5.25),
], False)
sketch20.addConstraint([
    Sketcher.Constraint("Coincident", 0, 2, 1, 1),
    Sketcher.Constraint("Coincident", 1, 2, 2, 1),
    Sketcher.Constraint("Coincident", 2, 2, 3, 1),
    Sketcher.Constraint("Coincident", 3, 2, 4, 1),
    Sketcher.Constraint("Coincident", 4, 2, 5, 1),
    Sketcher.Constraint("Coincident", 5, 2, 6, 1),
    Sketcher.Constraint("Coincident", 6, 2, 7, 1),
    Sketcher.Constraint("Coincident", 7, 2, 8, 1),
    Sketcher.Constraint("Tangent", 8, 2, 9, 1),
    Sketcher.Constraint("Coincident", 9, 2, 0, 1),
    Sketcher.Constraint("Vertical", 0),
    Sketcher.Constraint("Horizontal", 1),
    Sketcher.Constraint("Vertical", 2),
    Sketcher.Constraint("Horizontal", 3),
    Sketcher.Constraint("Vertical", 4),
    Sketcher.Constraint("Horizontal", 5),
    Sketcher.Constraint("Vertical", 6),
    Sketcher.Constraint("Horizontal", 7),
    Sketcher.Constraint("Vertical", 8),
    Sketcher.Constraint("Coincident", 10, 3, 9, 3),
    Sketcher.Constraint("PointOnObject", 5, 2, -2),
    Sketcher.Constraint("Horizontal", 1, 2, 4, 2),
    Sketcher.Constraint("Vertical", 10, 3, 0, 2),
    Sketcher.Constraint("Diameter", 10, 10.5),
    Sketcher.Constraint("Radius", 9, 7.5),
    Sketcher.Constraint("DistanceX", 5, 2, 5, 1, 25.0),
    Sketcher.Constraint("DistanceX", 7, 1, 7, 2, 50.0),
    Sketcher.Constraint("DistanceY", 8, 1, 8, 2, 9.5),
    Sketcher.Constraint("DistanceY", 6, 2, -1, 1, 14.0),
    Sketcher.Constraint("DistanceX", 1, 2, 1, 1, 7.75),
    Sketcher.Constraint("DistanceY", 0, 1, 0, 2, 0.25),
    Sketcher.Constraint("DistanceY", 2, 1, 2, 2, 6.55),
])
sketch20.setExpression("Constraints[23]", "Params.sketch20_diameter")
sketch20.setExpression("Constraints[24]", "Params.sketch20_radius")
sketch20.setExpression("Constraints[25]", "Params.sketch20_width")
sketch20.setExpression("Constraints[26]", "Params.sketch20_width2")
sketch20.setExpression("Constraints[27]", "Params.sketch20_height")
pad11 = doc.addObject("PartDesign::Pad", "Pad010")
body.addObject(pad11)
pad11.Profile = sketch20
pad11.setExpression("Length", "Params.pad11_length")
pad11.Reversed = True

sketch21 = doc.addObject("Sketcher::SketchObject", "Sketch020")
body.addObject(sketch21)
sketch21.AttachmentSupport = (doc.XY_Plane, [""])
sketch21.MapMode = "FlatFace"
sketch21.AttachmentOffset = App.Placement(V(0, 0, 3.25), App.Rotation())
add_polygon(sketch21, [(-14, 25), (-14, 0), (-10, 0), (-10, 25)])
add_polygon(sketch21, [(10, 25), (10, 0), (14, 0), (14, 25)])
sketch21.addConstraint([
    Sketcher.Constraint("Vertical", 0),
    Sketcher.Constraint("Horizontal", 1),
    Sketcher.Constraint("Vertical", 2),
    Sketcher.Constraint("Horizontal", 3),
    Sketcher.Constraint("Vertical", 4),
    Sketcher.Constraint("Horizontal", 5),
    Sketcher.Constraint("Vertical", 6),
    Sketcher.Constraint("Horizontal", 7),
    Sketcher.Constraint("Symmetric", 1, 2, 4, 2, -1, 1),
    Sketcher.Constraint("Symmetric", 0, 2, 5, 2, -2),
    Sketcher.Constraint("Horizontal", 3, 2, 6, 2),
    Sketcher.Constraint("DistanceX", 1, 1, 1, 2, 4.0),
    Sketcher.Constraint("DistanceY", 0, 2, 0, 1, 25.0),
    Sketcher.Constraint("DistanceX", 0, 2, -1, 1, 14.0),
])
sketch21.setExpression("Constraints[19]", "Params.sketch21_width")
sketch21.setExpression("Constraints[20]", "Params.sketch21_height")
pad12 = doc.addObject("PartDesign::Pad", "Pad011")
body.addObject(pad12)
pad12.Profile = sketch21
pad12.setExpression("Length", "Params.pad12_length")

sketch22 = doc.addObject("Sketcher::SketchObject", "Sketch021")
body.addObject(sketch22)
sketch22.AttachmentSupport = (doc.YZ_Plane, [""])
sketch22.MapMode = "FlatFace"
sketch22.AttachmentOffset = App.Placement(V(0, 0, 10), App.Rotation())
add_polygon(sketch22, [(6.5, 9.8), (0, 3.2), (-3.6, 3.2), (-3.8, 13.1)])
sketch22.addConstraint([
    Sketcher.Constraint("Horizontal", 1),
    Sketcher.Constraint("PointOnObject", 0, 2, -2),
    Sketcher.Constraint("Angle", 0, Q("-135 deg")),
    Sketcher.Constraint("DistanceY", -1, 1, 3, 2, 9.8),
    Sketcher.Constraint("DistanceY", -1, 1, 0, 2, 3.25),
    Sketcher.Constraint("DistanceX", 2, 2, -1, 1, 3.826399),
    Sketcher.Constraint("DistanceX", 1, 2, 1, 1, 3.616825),
    Sketcher.Constraint("Distance", 2, 9.874777),
])
pocket10 = doc.addObject("PartDesign::Pocket", "Pocket009")
body.addObject(pocket10)
pocket10.Profile = sketch22
pocket10.Type = "ThroughAll"
pocket10.Midplane = True

doc.recompute()
